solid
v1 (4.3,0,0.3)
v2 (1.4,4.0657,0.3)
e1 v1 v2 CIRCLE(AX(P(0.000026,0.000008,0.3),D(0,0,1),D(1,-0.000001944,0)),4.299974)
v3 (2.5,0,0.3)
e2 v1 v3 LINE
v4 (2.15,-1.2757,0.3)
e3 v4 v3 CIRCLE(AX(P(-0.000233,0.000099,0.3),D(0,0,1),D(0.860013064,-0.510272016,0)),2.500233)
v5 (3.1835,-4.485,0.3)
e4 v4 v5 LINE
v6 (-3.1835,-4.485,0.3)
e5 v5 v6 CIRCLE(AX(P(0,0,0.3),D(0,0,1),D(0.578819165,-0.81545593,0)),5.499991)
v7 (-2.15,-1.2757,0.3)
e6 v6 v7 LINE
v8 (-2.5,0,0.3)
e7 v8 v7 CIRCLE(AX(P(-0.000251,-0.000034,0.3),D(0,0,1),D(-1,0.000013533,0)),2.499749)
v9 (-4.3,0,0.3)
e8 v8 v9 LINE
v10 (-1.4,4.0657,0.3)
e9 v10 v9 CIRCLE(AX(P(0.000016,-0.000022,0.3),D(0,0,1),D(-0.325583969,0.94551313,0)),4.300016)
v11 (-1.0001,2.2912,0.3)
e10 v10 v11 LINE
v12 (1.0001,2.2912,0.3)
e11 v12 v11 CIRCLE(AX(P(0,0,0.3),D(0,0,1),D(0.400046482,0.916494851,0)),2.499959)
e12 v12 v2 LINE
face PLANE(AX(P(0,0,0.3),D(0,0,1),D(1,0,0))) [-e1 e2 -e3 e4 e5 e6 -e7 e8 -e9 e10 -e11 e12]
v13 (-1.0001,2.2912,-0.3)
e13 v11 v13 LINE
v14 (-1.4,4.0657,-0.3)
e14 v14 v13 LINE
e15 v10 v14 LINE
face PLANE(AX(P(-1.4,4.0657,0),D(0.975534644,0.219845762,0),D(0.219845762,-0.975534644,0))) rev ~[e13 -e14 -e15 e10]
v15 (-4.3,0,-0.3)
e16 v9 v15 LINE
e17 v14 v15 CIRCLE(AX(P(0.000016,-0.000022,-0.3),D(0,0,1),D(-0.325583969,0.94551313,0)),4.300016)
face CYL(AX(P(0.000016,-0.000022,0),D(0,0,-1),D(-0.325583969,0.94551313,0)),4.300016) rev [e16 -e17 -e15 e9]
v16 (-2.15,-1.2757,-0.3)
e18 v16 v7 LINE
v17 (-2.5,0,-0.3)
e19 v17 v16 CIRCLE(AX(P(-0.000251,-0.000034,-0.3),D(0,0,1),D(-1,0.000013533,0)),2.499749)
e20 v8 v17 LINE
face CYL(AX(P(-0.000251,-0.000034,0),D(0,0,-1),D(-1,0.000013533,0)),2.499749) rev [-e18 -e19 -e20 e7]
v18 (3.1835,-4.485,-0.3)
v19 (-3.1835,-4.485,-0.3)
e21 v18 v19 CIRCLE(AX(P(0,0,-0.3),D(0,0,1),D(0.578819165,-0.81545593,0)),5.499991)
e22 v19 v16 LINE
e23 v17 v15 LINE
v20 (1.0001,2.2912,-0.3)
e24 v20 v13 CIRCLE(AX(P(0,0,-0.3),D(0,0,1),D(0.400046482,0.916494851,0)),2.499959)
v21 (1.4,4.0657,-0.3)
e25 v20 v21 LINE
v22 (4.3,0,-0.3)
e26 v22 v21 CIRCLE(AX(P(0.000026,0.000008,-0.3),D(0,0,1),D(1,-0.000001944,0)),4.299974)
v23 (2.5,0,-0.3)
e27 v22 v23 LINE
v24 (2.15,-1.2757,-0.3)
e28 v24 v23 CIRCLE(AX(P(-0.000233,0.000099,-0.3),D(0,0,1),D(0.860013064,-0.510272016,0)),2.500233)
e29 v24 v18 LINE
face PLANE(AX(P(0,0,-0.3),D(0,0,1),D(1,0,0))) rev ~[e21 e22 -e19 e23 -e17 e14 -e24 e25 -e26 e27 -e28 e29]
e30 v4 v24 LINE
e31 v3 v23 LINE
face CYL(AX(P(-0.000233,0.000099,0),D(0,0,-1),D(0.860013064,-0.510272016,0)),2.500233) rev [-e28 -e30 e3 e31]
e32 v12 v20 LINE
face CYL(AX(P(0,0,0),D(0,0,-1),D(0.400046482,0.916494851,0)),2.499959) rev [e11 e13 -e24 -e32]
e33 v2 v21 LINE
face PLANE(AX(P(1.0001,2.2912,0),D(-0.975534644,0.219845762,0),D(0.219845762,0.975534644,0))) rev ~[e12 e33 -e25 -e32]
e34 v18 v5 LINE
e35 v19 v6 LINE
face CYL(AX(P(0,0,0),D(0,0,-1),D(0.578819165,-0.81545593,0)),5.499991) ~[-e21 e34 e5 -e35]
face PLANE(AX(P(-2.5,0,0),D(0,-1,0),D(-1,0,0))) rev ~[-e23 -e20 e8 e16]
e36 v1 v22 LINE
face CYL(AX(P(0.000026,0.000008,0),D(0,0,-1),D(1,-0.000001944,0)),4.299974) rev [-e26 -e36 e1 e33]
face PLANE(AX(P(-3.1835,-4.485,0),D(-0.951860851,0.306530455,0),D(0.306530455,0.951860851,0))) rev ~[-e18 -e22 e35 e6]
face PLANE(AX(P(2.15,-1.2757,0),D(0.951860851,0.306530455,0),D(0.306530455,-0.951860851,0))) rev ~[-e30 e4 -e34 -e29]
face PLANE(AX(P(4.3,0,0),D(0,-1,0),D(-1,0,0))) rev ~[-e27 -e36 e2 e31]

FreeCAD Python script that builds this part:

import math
import FreeCAD as App
import Part
import Sketcher
Q = App.Units.Quantity

doc = App.newDocument("Part")
body = doc.addObject("PartDesign::Body", "Body")

# Sketch on XY plane
sketch1 = doc.addObject("Sketcher::SketchObject", "Sketch")
body.addObject(sketch1)
sketch1.AttachmentSupport = (doc.XY_Plane, [""])
sketch1.MapMode = "FlatFace"
sketch1.addGeometry(Part.LineSegment(App.Vector(2.15, -1.2757, 0), App.Vector(3.1835, -4.485, 0)), False)
sketch1.addGeometry(Part.ArcOfCircle(Part.Circle(App.Vector(0, 0, 0), App.Vector(0, 0, 1), 5.499991), math.radians(-54.632468), math.radians(234.632468)), False)
sketch1.addGeometry(Part.LineSegment(App.Vector(-3.1835, -4.485, 0), App.Vector(-2.15, -1.2757, 0)), False)
sketch1.addGeometry(Part.ArcOfCircle(Part.Circle(App.Vector(0, 0, 0), App.Vector(0, 0, 1), 2.499959), math.radians(180), math.radians(210.682726)), False)
sketch1.addGeometry(Part.LineSegment(App.Vector(-2.5, 0, 0), App.Vector(-4.3, 0, 0)), False)
sketch1.addGeometry(Part.ArcOfCircle(Part.Circle(App.Vector(0, 0, 0), App.Vector(0, 0, 1), 4.3), math.radians(109.000847), math.radians(180)), False)
sketch1.addGeometry(Part.LineSegment(App.Vector(-1.4, 4.0657, 0), App.Vector(-1.0001, 2.2912, 0)), False)
sketch1.addGeometry(Part.ArcOfCircle(Part.Circle(App.Vector(0, 0, 0), App.Vector(0, 0, 1), 2.499959), math.radians(66.418916), math.radians(113.581084)), False)
sketch1.addGeometry(Part.LineSegment(App.Vector(1.0001, 2.2912, 0), App.Vector(1.4, 4.0657, 0)), False)
sketch1.addGeometry(Part.ArcOfCircle(Part.Circle(App.Vector(0, 0, 0), App.Vector(0, 0, 1), 4.29999), math.radians(0), math.radians(70.999153)), False)
sketch1.addGeometry(Part.LineSegment(App.Vector(4.3, 0, 0), App.Vector(2.5, 0, 0)), False)
sketch1.addGeometry(Part.ArcOfCircle(Part.Circle(App.Vector(0, 0, 0), App.Vector(0, 0, 1), 2.5), math.radians(-30.682726), math.radians(0)), False)
sketch1.addConstraint(Sketcher.Constraint("Coincident", 0, 2, 1, 1))
sketch1.addConstraint(Sketcher.Constraint("Coincident", 1, 2, 2, 1))
sketch1.addConstraint(Sketcher.Constraint("Coincident", 2, 2, 3, 2))
sketch1.addConstraint(Sketcher.Constraint("Coincident", 3, 1, 4, 1))
sketch1.addConstraint(Sketcher.Constraint("Coincident", 4, 2, 5, 2))
sketch1.addConstraint(Sketcher.Constraint("Coincident", 5, 1, 6, 1))
sketch1.addConstraint(Sketcher.Constraint("Coincident", 6, 2, 7, 2))
sketch1.addConstraint(Sketcher.Constraint("Coincident", 7, 1, 8, 1))
sketch1.addConstraint(Sketcher.Constraint("Coincident", 8, 2, 9, 2))
sketch1.addConstraint(Sketcher.Constraint("Coincident", 9, 1, 10, 1))
sketch1.addConstraint(Sketcher.Constraint("Coincident", 10, 2, 11, 2))
sketch1.addConstraint(Sketcher.Constraint("Coincident", 11, 1, 0, 1))
sketch1.addConstraint(Sketcher.Constraint("Horizontal", 4))
sketch1.addConstraint(Sketcher.Constraint("Horizontal", 10))
sketch1.addConstraint(Sketcher.Constraint("Coincident", 1, 3, -1, 1))
sketch1.addConstraint(Sketcher.Constraint("Coincident", 3, 3, -1, 1))
sketch1.addConstraint(Sketcher.Constraint("Coincident", 5, 3, -1, 1))
sketch1.addConstraint(Sketcher.Constraint("Coincident", 7, 3, -1, 1))
sketch1.addConstraint(Sketcher.Constraint("Coincident", 9, 3, -1, 1))
sketch1.addConstraint(Sketcher.Constraint("Coincident", 11, 3, -1, 1))
sketch1.addConstraint(Sketcher.Constraint("Equal", 3, 7))
sketch1.addConstraint(Sketcher.Constraint("Equal", 5, 9))
sketch1.addConstraint(Sketcher.Constraint("Equal", 7, 11))
sketch1.addConstraint(Sketcher.Constraint("PointOnObject", 3, 1, -1))
sketch1.addConstraint(Sketcher.Constraint("PointOnObject", 9, 1, -1))
sketch1.addConstraint(Sketcher.Constraint("Horizontal", 0, 2, 1, 2))
sketch1.addConstraint(Sketcher.Constraint("Horizontal", 6, 2, 7, 1))
sketch1.addConstraint(Sketcher.Constraint("Horizontal", 5, 1, 8, 2))
sketch1.addConstraint(Sketcher.Constraint("Horizontal", 2, 2, 11, 1))
sketch1.addConstraint(Sketcher.Constraint("Radius", 1, Q("5.5 mm")))
sketch1.addConstraint(Sketcher.Constraint("Radius", 3, Q("2.5 mm")))
sketch1.addConstraint(Sketcher.Constraint("Radius", 5, Q("4.3 mm")))
sketch1.addConstraint(Sketcher.Constraint("DistanceX", 6, 2, -1, 1, Q("1 mm")))
sketch1.addConstraint(Sketcher.Constraint("Angle", 6, Q("-77.3 deg")))
sketch1.addConstraint(Sketcher.Constraint("Angle", 0, Q("-72.1497 deg")))
sketch1.addConstraint(Sketcher.Constraint("DistanceX", 2, 2, -1, 1, Q("2.15 mm")))
pad1 = doc.addObject("PartDesign::Pad", "Pad")
body.addObject(pad1)
pad1.Profile = sketch1
pad1.Length = 0.6
pad1.Midplane = True

doc.recompute()
